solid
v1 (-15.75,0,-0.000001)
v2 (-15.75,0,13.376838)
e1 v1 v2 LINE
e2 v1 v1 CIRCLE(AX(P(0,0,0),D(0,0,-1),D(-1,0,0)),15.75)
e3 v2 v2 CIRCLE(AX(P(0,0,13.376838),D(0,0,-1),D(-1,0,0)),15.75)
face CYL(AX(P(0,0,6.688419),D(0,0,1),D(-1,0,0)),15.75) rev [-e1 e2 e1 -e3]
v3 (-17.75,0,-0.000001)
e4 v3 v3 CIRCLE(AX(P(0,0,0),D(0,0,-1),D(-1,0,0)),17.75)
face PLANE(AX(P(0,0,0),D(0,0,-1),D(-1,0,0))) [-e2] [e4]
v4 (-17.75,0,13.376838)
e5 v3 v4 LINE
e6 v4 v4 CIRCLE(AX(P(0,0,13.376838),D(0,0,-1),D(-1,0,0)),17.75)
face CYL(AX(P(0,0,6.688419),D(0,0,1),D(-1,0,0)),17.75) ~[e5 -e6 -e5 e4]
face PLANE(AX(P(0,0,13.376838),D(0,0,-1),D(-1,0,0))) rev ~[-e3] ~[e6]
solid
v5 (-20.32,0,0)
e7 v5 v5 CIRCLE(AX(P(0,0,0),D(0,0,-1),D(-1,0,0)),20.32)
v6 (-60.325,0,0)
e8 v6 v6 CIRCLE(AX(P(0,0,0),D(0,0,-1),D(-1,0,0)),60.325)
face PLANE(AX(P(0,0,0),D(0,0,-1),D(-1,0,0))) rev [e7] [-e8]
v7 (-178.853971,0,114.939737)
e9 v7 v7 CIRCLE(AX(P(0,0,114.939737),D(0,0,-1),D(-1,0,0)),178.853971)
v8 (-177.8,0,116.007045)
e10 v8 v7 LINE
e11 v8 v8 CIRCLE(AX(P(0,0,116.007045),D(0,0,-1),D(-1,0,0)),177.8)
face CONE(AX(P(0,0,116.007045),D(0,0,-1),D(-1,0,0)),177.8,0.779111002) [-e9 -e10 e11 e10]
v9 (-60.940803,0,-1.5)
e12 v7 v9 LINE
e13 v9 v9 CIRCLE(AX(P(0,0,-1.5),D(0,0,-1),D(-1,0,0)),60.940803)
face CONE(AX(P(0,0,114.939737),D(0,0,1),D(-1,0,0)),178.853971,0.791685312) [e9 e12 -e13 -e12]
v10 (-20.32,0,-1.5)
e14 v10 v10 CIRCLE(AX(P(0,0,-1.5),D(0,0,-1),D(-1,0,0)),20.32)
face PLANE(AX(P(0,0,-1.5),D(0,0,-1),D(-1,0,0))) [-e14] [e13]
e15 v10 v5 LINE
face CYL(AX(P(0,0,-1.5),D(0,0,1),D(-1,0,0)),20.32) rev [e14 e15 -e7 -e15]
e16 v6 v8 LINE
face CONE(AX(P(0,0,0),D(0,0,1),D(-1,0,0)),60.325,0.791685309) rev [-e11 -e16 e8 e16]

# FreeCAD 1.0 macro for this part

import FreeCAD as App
import Part
import Sketcher
Q = App.Units.Quantity


def add_polygon(sketch, points):
    """Adds a closed chain of lines whose ends are joined by coincident constraints."""
    first, n = sketch.GeometryCount, len(points)
    for a, b in zip(points, points[1:] + points[:1]):
        sketch.addGeometry(Part.LineSegment(App.Vector(*a, 0), App.Vector(*b, 0)), False)
    for i in range(n):
        sketch.addConstraint(Sketcher.Constraint("Coincident", first + i, 2, first + (i + 1) % n, 1))

doc = App.newDocument("Part")
params = doc.addObject("Spreadsheet::Sheet", "Params")
for row, (alias, value) in enumerate([
    ("sketch1_width", "2 mm"),
    ("sketch1_height", "1.5 mm"),
    ("sketch1_length", "165.1 mm"),
    ("sketch1_length2", "1.5 mm"),
    ("revolution_angle", "360 deg"),
], start=1):
    params.set(f"A{row}", alias)
    params.set(f"B{row}", "=" + value)
    params.setAlias(f"B{row}", alias)

body = doc.addObject("PartDesign::Body", "Body")
body.AllowCompound = True

# Sketch on XZ plane
sketch1 = body.newObject("Sketcher::SketchObject", "Sketch")
sketch1.AttachmentSupport = (doc.getObject("XZ_Plane"), [""])
sketch1.MapMode = "FlatFace"
add_polygon(sketch1, [(-20.3, 0), (-60.3, 0), (-177.8, 116), (-178.9, 114.9), (-60.9, -1.5), (-20.3, -1.5)])  # lines 0-5
add_polygon(sketch1, [(-17.8, 13.4), (-17.8, 0), (-15.8, 0), (-15.8, 13.4)])  # lines 6-9
sketch1.addConstraint([
    Sketcher.Constraint("Horizontal", 0),
    Sketcher.Constraint("Horizontal", 4),
    Sketcher.Constraint("Vertical", 5),
    Sketcher.Constraint("Vertical", 6),
    Sketcher.Constraint("Horizontal", 7),
    Sketcher.Constraint("Vertical", 8),
    Sketcher.Constraint("Horizontal", 9),
    Sketcher.Constraint("PointOnObject", 0, 2, -1),
    Sketcher.Constraint("PointOnObject", 6, 2, -1),
    Sketcher.Constraint("Perpendicular", 1, 2),
    Sketcher.Constraint("Perpendicular", 2, 3),
    Sketcher.Constraint("DistanceX", 7, 1, 7, 2, Q("2 mm")),
    Sketcher.Constraint("DistanceY", 5, 1, 5, 2, Q("1.5 mm")),
    Sketcher.Constraint("Distance", 1, Q("165.1 mm")),
    Sketcher.Constraint("Distance", 2, Q("1.5 mm")),
    Sketcher.Constraint("DistanceX", 1, 2, -1, 1, Q("177.8 mm")),
    Sketcher.Constraint("DistanceX", 0, 2, 0, 1, Q("40.005 mm")),
    Sketcher.Constraint("DistanceX", 4, 2, -1, 1, Q("20.32 mm")),
    Sketcher.Constraint("DistanceX", 6, 2, -1, 1, Q("17.75 mm")),
    Sketcher.Constraint("DistanceY", 6, 2, 6, 1, Q("13.376839 mm")),
])
sketch1.setExpression("Constraints[21]", "Params.sketch1_width")
sketch1.setExpression("Constraints[22]", "Params.sketch1_height")
sketch1.setExpression("Constraints[23]", "Params.sketch1_length")
sketch1.setExpression("Constraints[24]", "Params.sketch1_length2")
revolution = body.newObject("PartDesign::Revolution", "Revolution")
revolution.Profile = sketch1
revolution.ReferenceAxis = (sketch1, ["V_Axis"])
revolution.setExpression("Angle", "Params.revolution_angle")

doc.recompute()
